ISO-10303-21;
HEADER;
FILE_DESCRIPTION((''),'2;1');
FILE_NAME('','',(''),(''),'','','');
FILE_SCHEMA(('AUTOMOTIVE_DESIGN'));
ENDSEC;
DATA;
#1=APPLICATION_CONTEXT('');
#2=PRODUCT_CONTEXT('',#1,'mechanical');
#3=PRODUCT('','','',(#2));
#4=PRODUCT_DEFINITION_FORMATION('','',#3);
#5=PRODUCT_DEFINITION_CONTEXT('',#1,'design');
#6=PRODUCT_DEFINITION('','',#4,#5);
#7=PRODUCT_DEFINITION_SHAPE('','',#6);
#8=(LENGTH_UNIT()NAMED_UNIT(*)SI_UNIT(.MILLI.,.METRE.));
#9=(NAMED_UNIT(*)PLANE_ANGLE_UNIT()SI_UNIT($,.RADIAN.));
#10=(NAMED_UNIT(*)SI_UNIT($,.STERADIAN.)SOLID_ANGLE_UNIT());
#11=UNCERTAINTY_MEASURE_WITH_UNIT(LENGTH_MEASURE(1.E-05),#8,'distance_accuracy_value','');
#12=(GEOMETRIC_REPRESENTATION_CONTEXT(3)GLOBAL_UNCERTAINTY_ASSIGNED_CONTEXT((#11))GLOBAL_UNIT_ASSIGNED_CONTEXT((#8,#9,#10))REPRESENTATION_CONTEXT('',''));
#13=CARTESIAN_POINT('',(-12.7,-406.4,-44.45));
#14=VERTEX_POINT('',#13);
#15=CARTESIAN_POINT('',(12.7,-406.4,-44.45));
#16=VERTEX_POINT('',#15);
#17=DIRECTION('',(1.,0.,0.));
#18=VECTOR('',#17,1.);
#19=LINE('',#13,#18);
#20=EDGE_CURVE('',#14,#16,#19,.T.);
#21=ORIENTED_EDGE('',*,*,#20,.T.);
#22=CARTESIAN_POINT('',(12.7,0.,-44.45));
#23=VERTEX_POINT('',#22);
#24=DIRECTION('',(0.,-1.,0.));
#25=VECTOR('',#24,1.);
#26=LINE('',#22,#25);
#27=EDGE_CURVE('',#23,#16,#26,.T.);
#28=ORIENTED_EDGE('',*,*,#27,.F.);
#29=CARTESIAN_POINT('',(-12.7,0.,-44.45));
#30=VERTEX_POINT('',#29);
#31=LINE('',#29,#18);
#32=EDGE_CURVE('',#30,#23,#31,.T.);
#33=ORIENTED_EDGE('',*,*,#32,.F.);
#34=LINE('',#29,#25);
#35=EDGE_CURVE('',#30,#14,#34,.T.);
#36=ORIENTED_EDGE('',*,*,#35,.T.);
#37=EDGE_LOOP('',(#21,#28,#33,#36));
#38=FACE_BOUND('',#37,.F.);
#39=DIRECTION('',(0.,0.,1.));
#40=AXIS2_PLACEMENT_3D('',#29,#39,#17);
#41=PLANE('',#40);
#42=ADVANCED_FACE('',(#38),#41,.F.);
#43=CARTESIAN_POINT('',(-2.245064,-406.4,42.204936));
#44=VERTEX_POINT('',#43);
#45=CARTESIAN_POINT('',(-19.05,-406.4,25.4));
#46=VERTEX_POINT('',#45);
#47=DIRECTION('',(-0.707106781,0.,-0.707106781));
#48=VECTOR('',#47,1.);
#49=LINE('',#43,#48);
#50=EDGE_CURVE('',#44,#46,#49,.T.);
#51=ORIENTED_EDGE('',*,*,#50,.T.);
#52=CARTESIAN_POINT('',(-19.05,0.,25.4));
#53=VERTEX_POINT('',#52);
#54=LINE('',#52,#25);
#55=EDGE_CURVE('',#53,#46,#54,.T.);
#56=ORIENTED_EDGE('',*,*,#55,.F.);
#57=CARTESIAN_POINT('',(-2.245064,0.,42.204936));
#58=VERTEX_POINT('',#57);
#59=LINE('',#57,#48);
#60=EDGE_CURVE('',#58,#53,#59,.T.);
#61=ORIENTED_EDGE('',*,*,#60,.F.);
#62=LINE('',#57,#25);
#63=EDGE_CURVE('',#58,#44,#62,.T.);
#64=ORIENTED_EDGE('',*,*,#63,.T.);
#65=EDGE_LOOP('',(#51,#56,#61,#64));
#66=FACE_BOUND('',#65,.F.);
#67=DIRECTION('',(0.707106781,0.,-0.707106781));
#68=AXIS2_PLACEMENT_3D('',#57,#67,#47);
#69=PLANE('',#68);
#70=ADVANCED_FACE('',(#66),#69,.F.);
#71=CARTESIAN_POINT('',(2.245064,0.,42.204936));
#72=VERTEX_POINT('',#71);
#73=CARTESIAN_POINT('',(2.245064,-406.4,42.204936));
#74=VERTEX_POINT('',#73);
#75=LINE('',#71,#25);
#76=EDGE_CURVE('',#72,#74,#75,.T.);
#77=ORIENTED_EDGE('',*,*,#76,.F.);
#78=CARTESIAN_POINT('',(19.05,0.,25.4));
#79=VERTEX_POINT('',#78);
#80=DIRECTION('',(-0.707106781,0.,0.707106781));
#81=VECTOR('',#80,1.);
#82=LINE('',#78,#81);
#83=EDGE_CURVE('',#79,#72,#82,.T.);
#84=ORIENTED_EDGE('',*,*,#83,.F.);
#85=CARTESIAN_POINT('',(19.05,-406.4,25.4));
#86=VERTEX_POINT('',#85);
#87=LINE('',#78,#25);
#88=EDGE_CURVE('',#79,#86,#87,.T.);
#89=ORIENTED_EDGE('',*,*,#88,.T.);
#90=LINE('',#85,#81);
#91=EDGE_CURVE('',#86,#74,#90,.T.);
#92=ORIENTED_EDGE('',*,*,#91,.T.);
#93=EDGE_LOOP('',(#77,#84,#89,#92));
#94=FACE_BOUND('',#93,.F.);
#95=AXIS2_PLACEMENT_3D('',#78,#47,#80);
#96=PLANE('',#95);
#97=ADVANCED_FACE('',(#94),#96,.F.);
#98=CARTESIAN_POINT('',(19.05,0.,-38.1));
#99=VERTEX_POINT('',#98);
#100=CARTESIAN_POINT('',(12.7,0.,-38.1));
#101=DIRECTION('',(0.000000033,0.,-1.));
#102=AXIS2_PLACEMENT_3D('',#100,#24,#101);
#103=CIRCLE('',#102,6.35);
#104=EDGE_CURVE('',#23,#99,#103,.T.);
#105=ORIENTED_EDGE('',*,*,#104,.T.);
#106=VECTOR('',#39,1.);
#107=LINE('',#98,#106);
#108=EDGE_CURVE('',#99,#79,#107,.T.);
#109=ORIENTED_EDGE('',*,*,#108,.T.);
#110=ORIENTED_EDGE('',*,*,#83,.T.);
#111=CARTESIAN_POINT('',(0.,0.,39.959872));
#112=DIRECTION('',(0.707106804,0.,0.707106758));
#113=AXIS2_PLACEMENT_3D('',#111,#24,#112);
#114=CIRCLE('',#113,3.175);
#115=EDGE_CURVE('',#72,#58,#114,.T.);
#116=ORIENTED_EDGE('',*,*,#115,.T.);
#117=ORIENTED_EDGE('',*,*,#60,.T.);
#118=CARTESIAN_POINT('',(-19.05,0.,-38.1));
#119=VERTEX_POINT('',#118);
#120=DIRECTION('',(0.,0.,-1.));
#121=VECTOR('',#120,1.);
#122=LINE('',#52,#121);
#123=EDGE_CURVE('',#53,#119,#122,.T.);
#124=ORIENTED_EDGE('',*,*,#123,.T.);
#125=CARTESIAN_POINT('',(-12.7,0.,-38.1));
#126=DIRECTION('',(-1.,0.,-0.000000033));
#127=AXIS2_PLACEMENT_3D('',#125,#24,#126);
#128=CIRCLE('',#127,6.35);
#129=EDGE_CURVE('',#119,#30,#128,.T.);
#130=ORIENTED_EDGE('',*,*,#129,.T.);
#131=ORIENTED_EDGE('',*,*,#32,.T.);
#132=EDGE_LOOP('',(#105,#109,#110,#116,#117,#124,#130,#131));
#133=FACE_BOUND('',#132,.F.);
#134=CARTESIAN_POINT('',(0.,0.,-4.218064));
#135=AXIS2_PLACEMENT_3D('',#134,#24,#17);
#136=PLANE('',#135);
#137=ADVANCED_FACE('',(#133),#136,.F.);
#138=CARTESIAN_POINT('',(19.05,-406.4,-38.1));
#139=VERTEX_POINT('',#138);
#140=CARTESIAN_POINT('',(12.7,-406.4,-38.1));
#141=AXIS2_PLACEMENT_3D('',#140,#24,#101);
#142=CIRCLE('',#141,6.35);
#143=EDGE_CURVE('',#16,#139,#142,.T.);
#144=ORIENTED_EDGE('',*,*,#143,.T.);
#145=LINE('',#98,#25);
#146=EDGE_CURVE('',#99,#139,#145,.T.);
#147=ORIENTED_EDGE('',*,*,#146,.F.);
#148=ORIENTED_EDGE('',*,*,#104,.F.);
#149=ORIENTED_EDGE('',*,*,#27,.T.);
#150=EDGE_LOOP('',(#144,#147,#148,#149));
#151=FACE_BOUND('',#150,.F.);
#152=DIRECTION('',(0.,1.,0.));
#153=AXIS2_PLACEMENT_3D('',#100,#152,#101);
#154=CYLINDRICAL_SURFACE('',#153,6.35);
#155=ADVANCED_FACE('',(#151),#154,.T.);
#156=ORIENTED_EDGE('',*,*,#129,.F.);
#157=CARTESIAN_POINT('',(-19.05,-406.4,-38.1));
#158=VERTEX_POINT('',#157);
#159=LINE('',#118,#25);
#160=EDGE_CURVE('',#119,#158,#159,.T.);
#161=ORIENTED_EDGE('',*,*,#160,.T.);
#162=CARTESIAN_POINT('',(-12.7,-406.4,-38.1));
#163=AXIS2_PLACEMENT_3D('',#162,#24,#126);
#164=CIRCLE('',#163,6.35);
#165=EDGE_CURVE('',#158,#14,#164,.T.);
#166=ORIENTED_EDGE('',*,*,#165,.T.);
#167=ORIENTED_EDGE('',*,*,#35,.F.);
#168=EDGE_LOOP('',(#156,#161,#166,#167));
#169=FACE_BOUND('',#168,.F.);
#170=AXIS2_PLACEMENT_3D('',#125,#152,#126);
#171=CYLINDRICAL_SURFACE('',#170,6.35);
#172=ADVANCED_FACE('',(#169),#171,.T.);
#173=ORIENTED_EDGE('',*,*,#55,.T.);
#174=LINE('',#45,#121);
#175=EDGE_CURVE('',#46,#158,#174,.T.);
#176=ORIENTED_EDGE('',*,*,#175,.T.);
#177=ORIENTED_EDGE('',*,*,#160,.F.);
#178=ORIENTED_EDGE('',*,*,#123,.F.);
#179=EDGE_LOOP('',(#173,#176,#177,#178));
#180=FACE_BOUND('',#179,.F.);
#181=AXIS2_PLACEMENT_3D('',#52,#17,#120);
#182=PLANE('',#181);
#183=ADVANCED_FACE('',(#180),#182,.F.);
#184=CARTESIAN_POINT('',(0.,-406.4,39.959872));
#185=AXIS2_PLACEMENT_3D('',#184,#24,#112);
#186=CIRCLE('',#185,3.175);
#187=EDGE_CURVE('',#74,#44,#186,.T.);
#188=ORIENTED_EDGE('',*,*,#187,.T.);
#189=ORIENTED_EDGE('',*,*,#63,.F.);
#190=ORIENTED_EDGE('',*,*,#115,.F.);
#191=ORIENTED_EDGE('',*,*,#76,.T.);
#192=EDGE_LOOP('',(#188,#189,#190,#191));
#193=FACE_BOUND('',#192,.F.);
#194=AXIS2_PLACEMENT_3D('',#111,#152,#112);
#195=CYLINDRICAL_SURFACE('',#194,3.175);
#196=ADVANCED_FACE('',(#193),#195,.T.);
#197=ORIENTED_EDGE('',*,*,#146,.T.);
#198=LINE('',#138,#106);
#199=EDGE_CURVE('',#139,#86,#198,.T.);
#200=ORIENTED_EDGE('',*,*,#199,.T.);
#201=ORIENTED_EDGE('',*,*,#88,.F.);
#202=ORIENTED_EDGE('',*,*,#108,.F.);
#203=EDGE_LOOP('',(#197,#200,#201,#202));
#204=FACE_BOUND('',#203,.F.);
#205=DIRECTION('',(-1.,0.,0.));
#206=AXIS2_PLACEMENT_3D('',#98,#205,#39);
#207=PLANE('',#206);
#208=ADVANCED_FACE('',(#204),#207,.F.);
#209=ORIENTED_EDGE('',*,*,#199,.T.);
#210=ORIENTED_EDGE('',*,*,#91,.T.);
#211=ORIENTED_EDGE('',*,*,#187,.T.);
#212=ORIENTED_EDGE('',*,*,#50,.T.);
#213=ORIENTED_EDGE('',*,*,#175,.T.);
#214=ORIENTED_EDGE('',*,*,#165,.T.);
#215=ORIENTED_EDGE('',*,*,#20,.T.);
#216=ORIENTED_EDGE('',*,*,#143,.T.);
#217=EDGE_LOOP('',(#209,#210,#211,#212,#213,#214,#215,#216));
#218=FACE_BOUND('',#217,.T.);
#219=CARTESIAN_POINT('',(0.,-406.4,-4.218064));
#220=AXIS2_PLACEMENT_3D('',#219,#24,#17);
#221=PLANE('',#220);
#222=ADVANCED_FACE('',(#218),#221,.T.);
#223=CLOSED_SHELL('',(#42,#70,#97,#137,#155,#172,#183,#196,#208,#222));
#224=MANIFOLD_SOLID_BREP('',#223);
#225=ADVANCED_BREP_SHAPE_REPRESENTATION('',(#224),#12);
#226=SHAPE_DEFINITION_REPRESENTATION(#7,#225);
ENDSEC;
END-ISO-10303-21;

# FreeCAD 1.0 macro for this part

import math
import FreeCAD as App
import Part
import Sketcher
from FreeCAD import Vector
Q = App.Units.Quantity

doc = App.newDocument("Part")
params = doc.addObject("Spreadsheet::Sheet", "Params")
for row, (alias, value) in enumerate([
    ("sketch1_width", "1 in"),
    ("sketch1_radius", "0.25 in"),
    ("sketch1_height", "2.5 in"),
    ("sketch1_radius2", "0.125 in"),
    ("pad1_length", "16 in"),
], start=1):
    params.set(f"A{row}", alias)
    params.set(f"B{row}", "=" + value)
    params.setAlias(f"B{row}", alias)

body = doc.addObject("PartDesign::Body", "Body")

# Sketch on XZ plane
sketch1 = body.newObject("Sketcher::SketchObject", "Sketch")
sketch1.AttachmentSupport = (doc.getObject("XZ_Plane"), [""])
sketch1.MapMode = "FlatFace"
sketch1.addGeometry([
    Part.LineSegment(Vector(-12.7, -44.5, 0), Vector(12.7, -44.5, 0)),  # 0
    Part.ArcOfCircle(Part.Circle(Vector(12.7, -38.1, 0), Vector(0, 0, 1), 6.4), math.radians(-90), math.radians(0)),  # 1
    Part.LineSegment(Vector(19.1, -38.1, 0), Vector(19.1, 25.4, 0)),  # 2
    Part.LineSegment(Vector(19.1, 25.4, 0), Vector(2.2, 42.2, 0)),  # 3
    Part.ArcOfCircle(Part.Circle(Vector(0, 40, 0), Vector(0, 0, 1), 3.2), math.radians(45), math.radians(135)),  # 4
    Part.LineSegment(Vector(-2.2, 42.2, 0), Vector(-19.1, 25.4, 0)),  # 5
    Part.LineSegment(Vector(-19.1, 25.4, 0), Vector(-19.1, -38.1, 0)),  # 6
    Part.ArcOfCircle(Part.Circle(Vector(-12.7, -38.1, 0), Vector(0, 0, 1), 6.4), math.radians(-180), math.radians(-90)),  # 7
], False)
sketch1.addConstraint([
    Sketcher.Constraint("Tangent", 0, 2, 1, 1),
    Sketcher.Constraint("Tangent", 1, 2, 2, 1),
    Sketcher.Constraint("Coincident", 2, 2, 3, 1),
    Sketcher.Constraint("Tangent", 3, 2, 4, 1),
    Sketcher.Constraint("Tangent", 4, 2, 5, 1),
    Sketcher.Constraint("Coincident", 5, 2, 6, 1),
    Sketcher.Constraint("Tangent", 6, 2, 7, 1),
    Sketcher.Constraint("Tangent", 7, 2, 0, 1),
    Sketcher.Constraint("Horizontal", 0),
    Sketcher.Constraint("Vertical", 2),
    Sketcher.Constraint("Vertical", 6),
    Sketcher.Constraint("Equal", 1, 7),
    Sketcher.Constraint("Symmetric", 3, 2, 4, 2, -2),
    Sketcher.Constraint("Perpendicular", 3, 5),
    Sketcher.Constraint("Horizontal", 2, 2, 5, 2),
    Sketcher.Constraint("DistanceX", 0, 1, 0, 2, Q("1 in")),
    Sketcher.Constraint("Radius", 1, Q("0.25 in")),
    Sketcher.Constraint("DistanceY", 2, 1, 2, 2, Q("2.5 in")),
    Sketcher.Constraint("DistanceY", -1, 1, 2, 2, Q("1 in")),
    Sketcher.Constraint("Radius", 4, Q("0.125 in")),
])
sketch1.setExpression("Constraints[15]", "Params.sketch1_width")
sketch1.setExpression("Constraints[16]", "Params.sketch1_radius")
sketch1.setExpression("Constraints[17]", "Params.sketch1_height")
sketch1.setExpression("Constraints[19]", "Params.sketch1_radius2")
pad1 = body.newObject("PartDesign::Pad", "Pad")
pad1.Profile = sketch1
pad1.setExpression("Length", "Params.pad1_length")

doc.recompute()
